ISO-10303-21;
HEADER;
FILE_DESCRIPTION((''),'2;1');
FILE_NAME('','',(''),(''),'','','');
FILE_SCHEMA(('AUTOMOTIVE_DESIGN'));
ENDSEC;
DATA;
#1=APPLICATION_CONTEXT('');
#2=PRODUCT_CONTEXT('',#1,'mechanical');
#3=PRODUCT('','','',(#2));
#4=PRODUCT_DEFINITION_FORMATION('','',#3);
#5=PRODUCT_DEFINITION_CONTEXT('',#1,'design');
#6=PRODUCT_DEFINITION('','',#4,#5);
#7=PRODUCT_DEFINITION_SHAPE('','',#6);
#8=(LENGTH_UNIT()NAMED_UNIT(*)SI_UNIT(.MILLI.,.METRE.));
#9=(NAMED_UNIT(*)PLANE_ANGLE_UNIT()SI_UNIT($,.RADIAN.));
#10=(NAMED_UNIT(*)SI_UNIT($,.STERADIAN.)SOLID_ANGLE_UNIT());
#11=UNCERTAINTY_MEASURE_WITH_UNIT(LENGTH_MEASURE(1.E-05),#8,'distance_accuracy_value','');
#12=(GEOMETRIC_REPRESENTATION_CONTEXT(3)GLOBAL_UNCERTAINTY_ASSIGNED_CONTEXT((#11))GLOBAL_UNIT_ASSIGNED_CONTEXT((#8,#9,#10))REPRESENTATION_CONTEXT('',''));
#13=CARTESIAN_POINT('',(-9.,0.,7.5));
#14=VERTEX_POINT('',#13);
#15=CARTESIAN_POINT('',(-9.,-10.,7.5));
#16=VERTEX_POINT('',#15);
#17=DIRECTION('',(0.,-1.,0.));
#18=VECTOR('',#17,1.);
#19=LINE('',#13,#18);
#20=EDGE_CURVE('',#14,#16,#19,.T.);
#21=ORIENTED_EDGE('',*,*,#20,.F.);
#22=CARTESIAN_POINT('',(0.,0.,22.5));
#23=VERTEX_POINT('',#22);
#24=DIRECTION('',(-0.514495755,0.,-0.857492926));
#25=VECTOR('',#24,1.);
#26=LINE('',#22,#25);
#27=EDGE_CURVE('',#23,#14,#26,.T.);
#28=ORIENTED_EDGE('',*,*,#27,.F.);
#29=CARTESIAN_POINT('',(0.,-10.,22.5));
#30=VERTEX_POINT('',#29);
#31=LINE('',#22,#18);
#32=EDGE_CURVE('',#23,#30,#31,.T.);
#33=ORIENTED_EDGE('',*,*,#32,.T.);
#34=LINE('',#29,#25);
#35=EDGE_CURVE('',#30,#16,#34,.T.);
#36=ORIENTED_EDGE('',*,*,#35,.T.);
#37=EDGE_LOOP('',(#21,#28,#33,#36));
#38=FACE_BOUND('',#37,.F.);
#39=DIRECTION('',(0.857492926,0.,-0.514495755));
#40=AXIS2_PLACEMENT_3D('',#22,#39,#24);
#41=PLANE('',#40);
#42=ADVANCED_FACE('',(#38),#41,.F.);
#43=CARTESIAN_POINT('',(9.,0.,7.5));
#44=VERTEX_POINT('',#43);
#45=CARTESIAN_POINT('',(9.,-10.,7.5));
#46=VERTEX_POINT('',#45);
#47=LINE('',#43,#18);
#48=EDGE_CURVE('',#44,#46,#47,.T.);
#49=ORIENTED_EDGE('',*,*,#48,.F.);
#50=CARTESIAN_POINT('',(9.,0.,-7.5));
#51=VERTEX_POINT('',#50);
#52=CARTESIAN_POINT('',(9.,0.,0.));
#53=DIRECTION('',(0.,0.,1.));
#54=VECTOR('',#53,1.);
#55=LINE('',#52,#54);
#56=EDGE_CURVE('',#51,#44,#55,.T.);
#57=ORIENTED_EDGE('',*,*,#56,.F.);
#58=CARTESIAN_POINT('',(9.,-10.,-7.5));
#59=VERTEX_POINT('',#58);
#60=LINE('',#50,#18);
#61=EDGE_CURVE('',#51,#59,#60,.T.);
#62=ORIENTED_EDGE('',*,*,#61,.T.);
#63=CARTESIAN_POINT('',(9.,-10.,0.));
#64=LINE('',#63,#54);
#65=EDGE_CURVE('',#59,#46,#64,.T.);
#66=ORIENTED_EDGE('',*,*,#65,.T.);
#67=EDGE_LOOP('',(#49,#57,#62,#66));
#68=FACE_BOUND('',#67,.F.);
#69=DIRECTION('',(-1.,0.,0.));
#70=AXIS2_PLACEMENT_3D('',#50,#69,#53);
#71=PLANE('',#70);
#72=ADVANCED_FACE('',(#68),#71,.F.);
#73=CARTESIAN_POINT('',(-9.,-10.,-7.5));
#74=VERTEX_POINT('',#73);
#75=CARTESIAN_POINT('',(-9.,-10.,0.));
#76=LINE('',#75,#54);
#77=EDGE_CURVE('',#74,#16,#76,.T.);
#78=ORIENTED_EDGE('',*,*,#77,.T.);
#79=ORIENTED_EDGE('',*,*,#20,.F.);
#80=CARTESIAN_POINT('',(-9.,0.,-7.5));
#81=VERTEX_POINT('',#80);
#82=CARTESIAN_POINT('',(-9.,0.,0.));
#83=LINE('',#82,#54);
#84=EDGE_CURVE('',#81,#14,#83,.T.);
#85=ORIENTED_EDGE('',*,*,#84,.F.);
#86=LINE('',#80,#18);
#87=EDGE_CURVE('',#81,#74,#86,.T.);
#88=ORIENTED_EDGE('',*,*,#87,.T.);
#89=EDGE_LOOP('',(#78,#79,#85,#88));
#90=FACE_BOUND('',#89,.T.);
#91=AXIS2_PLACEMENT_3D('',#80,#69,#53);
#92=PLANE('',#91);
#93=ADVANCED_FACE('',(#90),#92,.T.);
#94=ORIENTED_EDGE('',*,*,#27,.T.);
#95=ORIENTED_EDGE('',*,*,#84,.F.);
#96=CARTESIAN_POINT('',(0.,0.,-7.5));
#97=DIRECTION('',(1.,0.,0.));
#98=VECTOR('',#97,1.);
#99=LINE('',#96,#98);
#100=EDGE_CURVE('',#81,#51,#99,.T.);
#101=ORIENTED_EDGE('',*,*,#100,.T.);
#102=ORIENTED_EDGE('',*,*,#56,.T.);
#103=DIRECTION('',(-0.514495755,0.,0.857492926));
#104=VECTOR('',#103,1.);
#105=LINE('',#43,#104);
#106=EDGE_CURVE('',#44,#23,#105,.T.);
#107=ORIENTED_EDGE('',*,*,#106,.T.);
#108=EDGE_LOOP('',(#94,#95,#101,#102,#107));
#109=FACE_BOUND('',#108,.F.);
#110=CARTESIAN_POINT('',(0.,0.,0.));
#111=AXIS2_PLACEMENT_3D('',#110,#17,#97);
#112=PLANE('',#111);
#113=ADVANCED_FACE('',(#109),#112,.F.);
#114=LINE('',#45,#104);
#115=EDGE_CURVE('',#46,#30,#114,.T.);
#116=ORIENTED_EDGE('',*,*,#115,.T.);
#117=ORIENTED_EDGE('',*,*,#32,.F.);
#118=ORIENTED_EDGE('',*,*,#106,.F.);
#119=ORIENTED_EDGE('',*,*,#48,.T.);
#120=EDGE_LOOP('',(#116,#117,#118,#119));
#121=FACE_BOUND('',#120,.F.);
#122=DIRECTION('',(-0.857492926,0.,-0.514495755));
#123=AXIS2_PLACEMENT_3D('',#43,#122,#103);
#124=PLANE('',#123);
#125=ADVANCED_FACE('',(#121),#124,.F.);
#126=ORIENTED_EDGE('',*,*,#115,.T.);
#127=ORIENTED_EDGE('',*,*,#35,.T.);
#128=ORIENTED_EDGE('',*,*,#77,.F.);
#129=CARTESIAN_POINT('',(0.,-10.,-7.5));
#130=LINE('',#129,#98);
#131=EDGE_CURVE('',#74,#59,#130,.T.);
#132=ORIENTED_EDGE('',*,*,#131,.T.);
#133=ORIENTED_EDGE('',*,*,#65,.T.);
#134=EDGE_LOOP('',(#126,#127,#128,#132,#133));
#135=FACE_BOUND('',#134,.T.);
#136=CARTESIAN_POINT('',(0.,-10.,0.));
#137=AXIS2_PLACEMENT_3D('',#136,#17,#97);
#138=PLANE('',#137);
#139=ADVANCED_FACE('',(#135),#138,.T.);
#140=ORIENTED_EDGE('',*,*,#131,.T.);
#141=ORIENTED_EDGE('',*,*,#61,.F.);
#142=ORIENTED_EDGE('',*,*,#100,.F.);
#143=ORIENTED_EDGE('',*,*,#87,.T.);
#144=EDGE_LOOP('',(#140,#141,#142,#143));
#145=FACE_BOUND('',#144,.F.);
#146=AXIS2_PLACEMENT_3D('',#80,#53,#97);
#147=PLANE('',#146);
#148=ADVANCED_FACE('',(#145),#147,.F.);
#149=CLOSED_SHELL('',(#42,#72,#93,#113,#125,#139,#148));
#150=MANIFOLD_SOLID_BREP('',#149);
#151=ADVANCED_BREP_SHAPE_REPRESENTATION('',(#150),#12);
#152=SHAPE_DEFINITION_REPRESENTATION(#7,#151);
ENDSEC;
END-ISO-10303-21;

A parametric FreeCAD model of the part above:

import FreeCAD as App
import Part
import Sketcher
Q = App.Units.Quantity

doc = App.newDocument("Part")
body = doc.addObject("PartDesign::Body", "Body")

# Sketch on XZ plane
sketch1 = doc.addObject("Sketcher::SketchObject", "Sketch")
body.addObject(sketch1)
sketch1.AttachmentSupport = (doc.XZ_Plane, [""])
sketch1.MapMode = "FlatFace"
sketch1.addGeometry(Part.LineSegment(App.Vector(-9, 8, 0), App.Vector(-9, -8, 0)), False)
sketch1.addGeometry(Part.LineSegment(App.Vector(-9, -8, 0), App.Vector(9, -8, 0)), False)
sketch1.addGeometry(Part.LineSegment(App.Vector(9, -8, 0), App.Vector(9, 8, 0)), False)
sketch1.addGeometry(Part.LineSegment(App.Vector(9, 8, 0), App.Vector(0, 22, 0)), False)
sketch1.addGeometry(Part.LineSegment(App.Vector(0, 22, 0), App.Vector(-9, 8, 0)), False)
sketch1.addConstraint(Sketcher.Constraint("Coincident", 0, 2, 1, 1))
sketch1.addConstraint(Sketcher.Constraint("Coincident", 1, 2, 2, 1))
sketch1.addConstraint(Sketcher.Constraint("Coincident", 2, 2, 3, 1))
sketch1.addConstraint(Sketcher.Constraint("Coincident", 3, 2, 4, 1))
sketch1.addConstraint(Sketcher.Constraint("Coincident", 4, 2, 0, 1))
sketch1.addConstraint(Sketcher.Constraint("Vertical", 0))
sketch1.addConstraint(Sketcher.Constraint("Horizontal", 1))
sketch1.addConstraint(Sketcher.Constraint("Vertical", 2))
sketch1.addConstraint(Sketcher.Constraint("Symmetric", 0, 2, 2, 2, -1, 1))
sketch1.addConstraint(Sketcher.Constraint("PointOnObject", 3, 2, -2))
sketch1.addConstraint(Sketcher.Constraint("Horizontal", 2, 2, 4, 2))
sketch1.addConstraint(Sketcher.Constraint("DistanceX", 1, 1, 1, 2, Q("18 mm")))
sketch1.addConstraint(Sketcher.Constraint("DistanceY", 0, 2, 0, 1, Q("15 mm")))
sketch1.addConstraint(Sketcher.Constraint("DistanceY", 2, 2, 3, 2, Q("15 mm")))
pad1 = doc.addObject("PartDesign::Pad", "Pad")
body.addObject(pad1)
pad1.Profile = sketch1
pad1.Length = 10

doc.recompute()
